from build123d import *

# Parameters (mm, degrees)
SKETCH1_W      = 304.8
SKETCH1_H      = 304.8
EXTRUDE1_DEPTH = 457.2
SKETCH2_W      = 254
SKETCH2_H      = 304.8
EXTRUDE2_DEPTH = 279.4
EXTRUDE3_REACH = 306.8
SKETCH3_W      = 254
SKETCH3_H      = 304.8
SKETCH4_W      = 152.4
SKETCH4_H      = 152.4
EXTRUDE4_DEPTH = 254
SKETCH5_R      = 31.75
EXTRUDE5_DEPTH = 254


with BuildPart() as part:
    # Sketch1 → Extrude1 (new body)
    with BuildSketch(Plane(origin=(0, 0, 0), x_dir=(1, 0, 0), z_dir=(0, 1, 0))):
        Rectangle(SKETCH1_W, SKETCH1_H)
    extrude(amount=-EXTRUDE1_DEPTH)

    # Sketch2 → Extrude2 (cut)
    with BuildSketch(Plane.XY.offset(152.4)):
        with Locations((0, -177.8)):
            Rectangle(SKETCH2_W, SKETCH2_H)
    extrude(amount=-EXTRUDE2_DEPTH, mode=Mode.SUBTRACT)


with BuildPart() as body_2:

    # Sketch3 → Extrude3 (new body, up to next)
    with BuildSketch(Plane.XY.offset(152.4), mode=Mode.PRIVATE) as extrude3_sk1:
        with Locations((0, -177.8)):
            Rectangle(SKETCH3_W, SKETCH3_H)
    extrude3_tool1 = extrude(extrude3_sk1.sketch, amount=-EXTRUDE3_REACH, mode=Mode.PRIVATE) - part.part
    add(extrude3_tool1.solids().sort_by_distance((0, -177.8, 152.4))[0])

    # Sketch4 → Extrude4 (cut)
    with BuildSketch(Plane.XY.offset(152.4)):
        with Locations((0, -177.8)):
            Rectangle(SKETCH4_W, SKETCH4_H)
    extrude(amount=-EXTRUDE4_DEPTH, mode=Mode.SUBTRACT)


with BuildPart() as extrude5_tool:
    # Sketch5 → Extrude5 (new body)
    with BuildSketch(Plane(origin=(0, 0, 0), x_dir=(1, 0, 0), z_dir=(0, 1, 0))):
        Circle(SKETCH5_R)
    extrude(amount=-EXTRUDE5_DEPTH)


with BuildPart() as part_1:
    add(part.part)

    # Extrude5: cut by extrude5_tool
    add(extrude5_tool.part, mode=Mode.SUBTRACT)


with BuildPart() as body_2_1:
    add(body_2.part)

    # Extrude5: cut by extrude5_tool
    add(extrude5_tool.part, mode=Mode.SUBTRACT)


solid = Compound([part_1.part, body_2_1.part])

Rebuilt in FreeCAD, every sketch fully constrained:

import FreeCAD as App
import Part
import Sketcher
from FreeCAD import Vector
Q = App.Units.Quantity

doc = App.newDocument("Part")
params = doc.addObject("Spreadsheet::Sheet", "Params")
for row, (alias, value) in enumerate([
    ("sketch1_width", "12 in"),
    ("pad1_length", "18 in"),
    ("sketch2_width", "10 in"),
    ("sketch2_height", "12 in"),
    ("pocket1_length", "11 in"),
    ("sketch3_width", "10 in"),
    ("sketch3_height", "12 in"),
    ("pad2_length", "11 in"),
    ("sketch4_width", "6 in"),
    ("pocket2_length", "10 in"),
    ("sketch5_diameter", "2.5 in"),
    ("pad3_length", "10 in"),
], start=1):
    params.set(f"A{row}", alias)
    params.set(f"B{row}", "=" + value)
    params.setAlias(f"B{row}", alias)

body = doc.addObject("PartDesign::Body", "Body")

sketch1 = body.newObject("Sketcher::SketchObject", "Sketch")
sketch1.AttachmentSupport = (doc.getObject("XZ_Plane"), [""])
sketch1.MapMode = "FlatFace"
sketch1.addGeometry(Part.LineSegment(Vector(-152, -152, 0), Vector(-152, 152, 0)), False)
sketch1.addGeometry(Part.LineSegment(Vector(-152, 152, 0), Vector(152, 152, 0)), False)
sketch1.addGeometry(Part.LineSegment(Vector(152, 152, 0), Vector(152, -152, 0)), False)
sketch1.addGeometry(Part.LineSegment(Vector(152, -152, 0), Vector(-152, -152, 0)), False)
sketch1.addConstraint(Sketcher.Constraint("Coincident", 0, 2, 1, 1))
sketch1.addConstraint(Sketcher.Constraint("Coincident", 1, 2, 2, 1))
sketch1.addConstraint(Sketcher.Constraint("Coincident", 2, 2, 3, 1))
sketch1.addConstraint(Sketcher.Constraint("Coincident", 3, 2, 0, 1))
sketch1.addConstraint(Sketcher.Constraint("Vertical", 0))
sketch1.addConstraint(Sketcher.Constraint("Horizontal", 1))
sketch1.addConstraint(Sketcher.Constraint("Vertical", 2))
sketch1.addConstraint(Sketcher.Constraint("Horizontal", 3))
sketch1.addConstraint(Sketcher.Constraint("Symmetric", 0, 2, 2, 2, -1, 1))
sketch1.addConstraint(Sketcher.Constraint("Equal", 3, 0))
sketch1.addConstraint(Sketcher.Constraint("DistanceX", 1, 1, 1, 2, Q("12 in")))
sketch1.setExpression("Constraints[10]", "Params.sketch1_width")
pad1 = body.newObject("PartDesign::Pad", "Pad")
pad1.Profile = sketch1
pad1.setExpression("Length", "Params.pad1_length")

sketch2 = body.newObject("Sketcher::SketchObject", "Sketch001")
sketch2.AttachmentSupport = (doc.getObject("XY_Plane"), [""])
sketch2.MapMode = "FlatFace"
sketch2.AttachmentOffset = App.Placement(Vector(0, 0, 6 * 25.4), App.Rotation())
sketch2.addGeometry(Part.LineSegment(Vector(-127, -25, 0), Vector(-127, -330, 0)), False)
sketch2.addGeometry(Part.LineSegment(Vector(-127, -330, 0), Vector(127, -330, 0)), False)
sketch2.addGeometry(Part.LineSegment(Vector(127, -330, 0), Vector(127, -25, 0)), False)
sketch2.addGeometry(Part.LineSegment(Vector(127, -25, 0), Vector(-127, -25, 0)), False)
sketch2.addConstraint(Sketcher.Constraint("Coincident", 0, 2, 1, 1))
sketch2.addConstraint(Sketcher.Constraint("Coincident", 1, 2, 2, 1))
sketch2.addConstraint(Sketcher.Constraint("Coincident", 2, 2, 3, 1))
sketch2.addConstraint(Sketcher.Constraint("Coincident", 3, 2, 0, 1))
sketch2.addConstraint(Sketcher.Constraint("Vertical", 0))
sketch2.addConstraint(Sketcher.Constraint("Horizontal", 1))
sketch2.addConstraint(Sketcher.Constraint("Vertical", 2))
sketch2.addConstraint(Sketcher.Constraint("Horizontal", 3))
sketch2.addConstraint(Sketcher.Constraint("DistanceX", 1, 1, 1, 2, Q("10 in")))
sketch2.addConstraint(Sketcher.Constraint("DistanceY", 0, 2, 0, 1, Q("12 in")))
sketch2.addConstraint(Sketcher.Constraint("DistanceX", 0, 2, -1, 1, Q("5 in")))
sketch2.addConstraint(Sketcher.Constraint("DistanceY", 0, 2, -1, 1, Q("13 in")))
sketch2.setExpression("Constraints[8]", "Params.sketch2_width")
sketch2.setExpression("Constraints[9]", "Params.sketch2_height")
pocket1 = body.newObject("PartDesign::Pocket", "Pocket")
pocket1.Profile = sketch2
pocket1.setExpression("Length", "Params.pocket1_length")
body2 = doc.addObject("PartDesign::Body", "Body001")

sketch3 = body2.newObject("Sketcher::SketchObject", "Sketch002")
sketch3.AttachmentSupport = (doc.getObject("XY_Plane001"), [""])
sketch3.MapMode = "FlatFace"
sketch3.AttachmentOffset = App.Placement(Vector(0, 0, 6 * 25.4), App.Rotation())
sketch3.addGeometry(Part.LineSegment(Vector(-127, -25, 0), Vector(-127, -330, 0)), False)
sketch3.addGeometry(Part.LineSegment(Vector(-127, -330, 0), Vector(127, -330, 0)), False)
sketch3.addGeometry(Part.LineSegment(Vector(127, -330, 0), Vector(127, -25, 0)), False)
sketch3.addGeometry(Part.LineSegment(Vector(127, -25, 0), Vector(-127, -25, 0)), False)
sketch3.addConstraint(Sketcher.Constraint("Coincident", 0, 2, 1, 1))
sketch3.addConstraint(Sketcher.Constraint("Coincident", 1, 2, 2, 1))
sketch3.addConstraint(Sketcher.Constraint("Coincident", 2, 2, 3, 1))
sketch3.addConstraint(Sketcher.Constraint("Coincident", 3, 2, 0, 1))
sketch3.addConstraint(Sketcher.Constraint("Vertical", 0))
sketch3.addConstraint(Sketcher.Constraint("Horizontal", 1))
sketch3.addConstraint(Sketcher.Constraint("Vertical", 2))
sketch3.addConstraint(Sketcher.Constraint("Horizontal", 3))
sketch3.addConstraint(Sketcher.Constraint("DistanceX", 1, 1, 1, 2, Q("10 in")))
sketch3.addConstraint(Sketcher.Constraint("DistanceY", 0, 2, 0, 1, Q("12 in")))
sketch3.addConstraint(Sketcher.Constraint("DistanceX", 0, 2, -1, 1, Q("5 in")))
sketch3.addConstraint(Sketcher.Constraint("DistanceY", 0, 2, -1, 1, Q("13 in")))
sketch3.setExpression("Constraints[8]", "Params.sketch3_width")
sketch3.setExpression("Constraints[9]", "Params.sketch3_height")
pad2 = body2.newObject("PartDesign::Pad", "Pad001")
pad2.Profile = sketch3
pad2.setExpression("Length", "Params.pad2_length")
pad2.Reversed = True

sketch4 = body2.newObject("Sketcher::SketchObject", "Sketch003")
sketch4.AttachmentSupport = (doc.getObject("XY_Plane001"), [""])
sketch4.MapMode = "FlatFace"
sketch4.AttachmentOffset = App.Placement(Vector(0, 0, 6 * 25.4), App.Rotation())
sketch4.addGeometry(Part.LineSegment(Vector(-76, -102, 0), Vector(-76, -254, 0)), False)
sketch4.addGeometry(Part.LineSegment(Vector(-76, -254, 0), Vector(76, -254, 0)), False)
sketch4.addGeometry(Part.LineSegment(Vector(76, -254, 0), Vector(76, -102, 0)), False)
sketch4.addGeometry(Part.LineSegment(Vector(76, -102, 0), Vector(-76, -102, 0)), False)
sketch4.addConstraint(Sketcher.Constraint("Coincident", 0, 2, 1, 1))
sketch4.addConstraint(Sketcher.Constraint("Coincident", 1, 2, 2, 1))
sketch4.addConstraint(Sketcher.Constraint("Coincident", 2, 2, 3, 1))
sketch4.addConstraint(Sketcher.Constraint("Coincident", 3, 2, 0, 1))
sketch4.addConstraint(Sketcher.Constraint("Vertical", 0))
sketch4.addConstraint(Sketcher.Constraint("Horizontal", 1))
sketch4.addConstraint(Sketcher.Constraint("Vertical", 2))
sketch4.addConstraint(Sketcher.Constraint("Horizontal", 3))
sketch4.addConstraint(Sketcher.Constraint("Equal", 3, 0))
sketch4.addConstraint(Sketcher.Constraint("DistanceX", 1, 1, 1, 2, Q("6 in")))
sketch4.addConstraint(Sketcher.Constraint("DistanceX", 0, 2, -1, 1, Q("3 in")))
sketch4.addConstraint(Sketcher.Constraint("DistanceY", 0, 2, -1, 1, Q("10 in")))
sketch4.setExpression("Constraints[9]", "Params.sketch4_width")
pocket2 = body2.newObject("PartDesign::Pocket", "Pocket001")
pocket2.Profile = sketch4
pocket2.setExpression("Length", "Params.pocket2_length")
body3 = doc.addObject("PartDesign::Body", "Body002")

sketch5 = body3.newObject("Sketcher::SketchObject", "Sketch004")
sketch5.AttachmentSupport = (doc.getObject("XZ_Plane002"), [""])
sketch5.MapMode = "FlatFace"
sketch5.addGeometry(Part.Circle(Vector(0, 0, 0), Vector(0, 0, 1), 32), False)
sketch5.addConstraint(Sketcher.Constraint("Coincident", 0, 3, -1, 1))
sketch5.addConstraint(Sketcher.Constraint("Diameter", 0, Q("2.5 in")))
sketch5.setExpression("Constraints[1]", "Params.sketch5_diameter")
pad3 = body3.newObject("PartDesign::Pad", "Pad002")
pad3.Profile = sketch5
pad3.setExpression("Length", "Params.pad3_length")
doc.recompute()

body4 = doc.addObject("PartDesign::Body", "Body003")
body4.BaseFeature = body3
boolean = body.newObject("PartDesign::Boolean", "Boolean")
boolean.Type = "Cut"
boolean.addObjects([body4])
doc.recompute()

boolean2 = body2.newObject("PartDesign::Boolean", "Boolean001")
boolean2.Type = "Cut"
boolean2.addObjects([body3])

doc.recompute()
